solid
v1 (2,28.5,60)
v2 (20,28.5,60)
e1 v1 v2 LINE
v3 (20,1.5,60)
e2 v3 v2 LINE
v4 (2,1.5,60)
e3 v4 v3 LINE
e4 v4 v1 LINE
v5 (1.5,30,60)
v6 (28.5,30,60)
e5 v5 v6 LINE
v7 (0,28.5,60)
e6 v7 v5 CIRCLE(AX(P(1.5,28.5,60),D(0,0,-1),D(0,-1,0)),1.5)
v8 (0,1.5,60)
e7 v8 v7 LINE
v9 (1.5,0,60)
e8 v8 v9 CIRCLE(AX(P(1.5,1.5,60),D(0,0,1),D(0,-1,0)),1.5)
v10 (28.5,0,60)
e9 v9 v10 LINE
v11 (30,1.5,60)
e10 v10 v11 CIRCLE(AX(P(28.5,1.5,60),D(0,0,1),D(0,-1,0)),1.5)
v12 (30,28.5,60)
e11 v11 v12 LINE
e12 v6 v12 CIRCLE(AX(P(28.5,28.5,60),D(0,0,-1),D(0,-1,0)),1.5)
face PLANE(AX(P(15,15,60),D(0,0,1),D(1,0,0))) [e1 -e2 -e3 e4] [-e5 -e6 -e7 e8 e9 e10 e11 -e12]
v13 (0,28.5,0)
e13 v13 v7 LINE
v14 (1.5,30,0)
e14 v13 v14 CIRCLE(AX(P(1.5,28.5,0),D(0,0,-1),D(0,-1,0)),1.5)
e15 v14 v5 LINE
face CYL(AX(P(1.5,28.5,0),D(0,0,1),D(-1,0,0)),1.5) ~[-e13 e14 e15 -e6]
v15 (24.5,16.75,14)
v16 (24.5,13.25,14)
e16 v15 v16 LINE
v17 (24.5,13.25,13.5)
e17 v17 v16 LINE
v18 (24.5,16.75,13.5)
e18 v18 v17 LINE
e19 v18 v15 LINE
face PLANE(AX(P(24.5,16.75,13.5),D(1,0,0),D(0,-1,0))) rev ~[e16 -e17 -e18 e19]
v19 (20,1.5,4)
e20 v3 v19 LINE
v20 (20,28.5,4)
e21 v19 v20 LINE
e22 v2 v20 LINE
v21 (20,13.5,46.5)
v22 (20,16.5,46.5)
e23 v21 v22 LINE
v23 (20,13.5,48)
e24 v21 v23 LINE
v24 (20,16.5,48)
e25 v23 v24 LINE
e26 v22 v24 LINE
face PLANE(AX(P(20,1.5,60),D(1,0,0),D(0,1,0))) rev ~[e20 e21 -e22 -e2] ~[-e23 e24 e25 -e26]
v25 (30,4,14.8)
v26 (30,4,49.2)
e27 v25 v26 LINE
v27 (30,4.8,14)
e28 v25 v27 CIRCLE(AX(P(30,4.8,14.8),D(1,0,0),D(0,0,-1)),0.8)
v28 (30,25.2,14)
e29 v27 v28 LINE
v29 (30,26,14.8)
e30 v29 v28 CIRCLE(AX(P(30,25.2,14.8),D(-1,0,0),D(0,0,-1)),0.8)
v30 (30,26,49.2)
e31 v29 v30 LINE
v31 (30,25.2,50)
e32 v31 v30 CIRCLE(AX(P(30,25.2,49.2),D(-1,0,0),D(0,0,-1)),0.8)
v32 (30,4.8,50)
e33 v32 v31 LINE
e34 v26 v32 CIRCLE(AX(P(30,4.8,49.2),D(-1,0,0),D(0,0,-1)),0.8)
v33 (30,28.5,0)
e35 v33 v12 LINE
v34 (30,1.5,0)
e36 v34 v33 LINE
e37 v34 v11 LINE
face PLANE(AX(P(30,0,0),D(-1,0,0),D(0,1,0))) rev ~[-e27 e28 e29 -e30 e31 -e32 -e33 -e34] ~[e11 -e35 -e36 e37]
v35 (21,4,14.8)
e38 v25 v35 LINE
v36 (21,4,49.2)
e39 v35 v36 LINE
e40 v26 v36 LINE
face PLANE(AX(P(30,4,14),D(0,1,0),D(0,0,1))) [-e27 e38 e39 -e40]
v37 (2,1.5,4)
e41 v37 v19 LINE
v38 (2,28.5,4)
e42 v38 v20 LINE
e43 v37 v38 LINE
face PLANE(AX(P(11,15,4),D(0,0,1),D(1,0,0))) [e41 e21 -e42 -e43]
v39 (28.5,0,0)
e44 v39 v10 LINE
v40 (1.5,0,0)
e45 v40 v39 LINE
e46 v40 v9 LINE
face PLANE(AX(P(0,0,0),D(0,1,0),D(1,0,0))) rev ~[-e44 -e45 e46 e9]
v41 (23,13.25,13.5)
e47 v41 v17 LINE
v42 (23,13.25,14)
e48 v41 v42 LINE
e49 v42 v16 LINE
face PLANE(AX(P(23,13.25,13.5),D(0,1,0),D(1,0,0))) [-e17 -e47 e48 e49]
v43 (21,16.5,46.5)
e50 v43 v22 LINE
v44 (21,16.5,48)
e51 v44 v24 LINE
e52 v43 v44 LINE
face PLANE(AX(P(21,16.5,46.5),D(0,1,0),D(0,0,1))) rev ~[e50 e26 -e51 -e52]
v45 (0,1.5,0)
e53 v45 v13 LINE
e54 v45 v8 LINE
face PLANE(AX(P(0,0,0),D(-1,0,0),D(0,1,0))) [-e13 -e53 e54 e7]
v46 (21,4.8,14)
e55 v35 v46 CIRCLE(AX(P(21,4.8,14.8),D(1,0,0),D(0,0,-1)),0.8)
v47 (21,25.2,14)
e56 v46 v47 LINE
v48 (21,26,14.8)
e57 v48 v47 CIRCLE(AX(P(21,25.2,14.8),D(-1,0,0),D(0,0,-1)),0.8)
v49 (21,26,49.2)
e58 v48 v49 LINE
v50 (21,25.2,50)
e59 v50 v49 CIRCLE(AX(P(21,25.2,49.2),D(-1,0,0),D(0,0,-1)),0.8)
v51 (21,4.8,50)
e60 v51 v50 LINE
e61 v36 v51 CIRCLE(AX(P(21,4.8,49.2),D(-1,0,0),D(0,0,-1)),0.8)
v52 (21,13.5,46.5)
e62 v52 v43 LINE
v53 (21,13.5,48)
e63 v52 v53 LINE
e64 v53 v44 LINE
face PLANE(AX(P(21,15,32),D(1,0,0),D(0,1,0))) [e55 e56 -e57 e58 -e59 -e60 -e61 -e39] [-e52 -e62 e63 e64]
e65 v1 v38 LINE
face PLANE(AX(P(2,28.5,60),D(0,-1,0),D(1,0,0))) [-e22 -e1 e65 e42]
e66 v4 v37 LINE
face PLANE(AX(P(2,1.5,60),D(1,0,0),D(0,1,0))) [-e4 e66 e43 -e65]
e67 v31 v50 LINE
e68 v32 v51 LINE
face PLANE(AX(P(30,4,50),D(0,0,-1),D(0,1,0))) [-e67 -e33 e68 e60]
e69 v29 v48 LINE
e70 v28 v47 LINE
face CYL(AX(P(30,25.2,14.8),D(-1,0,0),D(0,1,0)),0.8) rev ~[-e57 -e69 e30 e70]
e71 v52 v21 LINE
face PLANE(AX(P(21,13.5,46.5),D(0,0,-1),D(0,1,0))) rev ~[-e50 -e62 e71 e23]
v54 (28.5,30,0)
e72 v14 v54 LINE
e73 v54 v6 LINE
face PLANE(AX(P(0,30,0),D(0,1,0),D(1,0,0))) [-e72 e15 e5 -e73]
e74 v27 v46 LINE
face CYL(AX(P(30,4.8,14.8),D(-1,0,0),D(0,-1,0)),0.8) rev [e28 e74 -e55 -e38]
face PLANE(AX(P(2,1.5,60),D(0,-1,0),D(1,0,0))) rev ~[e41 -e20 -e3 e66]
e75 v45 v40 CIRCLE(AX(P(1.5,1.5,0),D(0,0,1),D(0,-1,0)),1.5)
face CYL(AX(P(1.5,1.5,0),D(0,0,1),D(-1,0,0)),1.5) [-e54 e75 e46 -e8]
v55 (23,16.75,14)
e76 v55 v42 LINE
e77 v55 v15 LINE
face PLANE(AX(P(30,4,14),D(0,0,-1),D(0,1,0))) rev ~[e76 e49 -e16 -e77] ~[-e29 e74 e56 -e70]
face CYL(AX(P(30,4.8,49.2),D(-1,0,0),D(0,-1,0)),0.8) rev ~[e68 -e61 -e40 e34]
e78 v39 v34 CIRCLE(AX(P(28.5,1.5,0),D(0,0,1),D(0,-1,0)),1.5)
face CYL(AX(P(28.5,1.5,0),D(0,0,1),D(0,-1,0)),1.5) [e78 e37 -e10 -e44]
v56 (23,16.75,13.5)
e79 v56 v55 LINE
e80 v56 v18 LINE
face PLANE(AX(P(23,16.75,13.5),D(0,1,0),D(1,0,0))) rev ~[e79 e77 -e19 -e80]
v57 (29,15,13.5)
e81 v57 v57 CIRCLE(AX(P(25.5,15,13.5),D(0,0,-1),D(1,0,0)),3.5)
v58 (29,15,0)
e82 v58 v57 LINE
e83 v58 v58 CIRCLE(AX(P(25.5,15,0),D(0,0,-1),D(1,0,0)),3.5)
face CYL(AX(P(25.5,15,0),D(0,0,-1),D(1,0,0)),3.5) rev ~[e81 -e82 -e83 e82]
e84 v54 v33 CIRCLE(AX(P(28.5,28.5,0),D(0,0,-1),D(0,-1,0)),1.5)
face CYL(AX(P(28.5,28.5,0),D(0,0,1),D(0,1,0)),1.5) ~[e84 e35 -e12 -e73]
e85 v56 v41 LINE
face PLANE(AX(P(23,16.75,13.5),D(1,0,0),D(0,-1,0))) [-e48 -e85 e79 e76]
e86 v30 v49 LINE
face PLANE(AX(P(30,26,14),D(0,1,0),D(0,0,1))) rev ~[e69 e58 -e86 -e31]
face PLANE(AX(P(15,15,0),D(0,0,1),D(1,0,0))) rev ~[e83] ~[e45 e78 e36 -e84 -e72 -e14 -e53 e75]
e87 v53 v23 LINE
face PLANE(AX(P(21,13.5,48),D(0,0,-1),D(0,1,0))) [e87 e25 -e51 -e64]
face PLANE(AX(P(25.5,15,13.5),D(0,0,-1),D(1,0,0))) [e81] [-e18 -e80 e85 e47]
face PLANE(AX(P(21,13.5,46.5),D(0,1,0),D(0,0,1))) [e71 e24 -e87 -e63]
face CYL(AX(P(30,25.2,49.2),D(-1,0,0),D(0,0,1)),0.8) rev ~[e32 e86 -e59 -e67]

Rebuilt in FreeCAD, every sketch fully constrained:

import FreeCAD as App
import Part
import Sketcher
Q = App.Units.Quantity


def edges_at(feature, points):
    """Names of the edges that pass closest to the given points."""
    edges = feature.Shape.Edges
    near = lambda p: min(range(len(edges)), key=lambda i: edges[i].distToShape(Part.Vertex(*p))[0])
    return sorted({f"Edge{near(p) + 1}" for p in points})


def add_polygon(sketch, points):
    """Adds a closed chain of lines whose ends are joined by coincident constraints."""
    first, n = sketch.GeometryCount, len(points)
    for a, b in zip(points, points[1:] + points[:1]):
        sketch.addGeometry(Part.LineSegment(App.Vector(*a, 0), App.Vector(*b, 0)), False)
    for i in range(n):
        sketch.addConstraint(Sketcher.Constraint("Coincident", first + i, 2, first + (i + 1) % n, 1))

doc = App.newDocument("Part")
body = doc.addObject("PartDesign::Body", "Body")

# Sketch on XY plane
sketch1 = body.newObject("Sketcher::SketchObject", "Sketch")
sketch1.AttachmentSupport = (doc.getObject("XY_Plane"), [""])
sketch1.MapMode = "FlatFace"
add_polygon(sketch1, [(0, 30), (0, 0), (30, 0), (30, 30)])  # lines 0-3
sketch1.addConstraint([
    Sketcher.Constraint("Vertical", 0),
    Sketcher.Constraint("Horizontal", 1),
    Sketcher.Constraint("Vertical", 2),
    Sketcher.Constraint("Horizontal", 3),
    Sketcher.Constraint("Coincident", 0, 2, -1, 1),
    Sketcher.Constraint("Equal", 3, 0),
    Sketcher.Constraint("DistanceX", 1, 1, 1, 2, Q("30 mm")),
])
pad1 = body.newObject("PartDesign::Pad", "Pad")
pad1.Profile = sketch1
pad1.Length = 60

# Sketch on XY plane
sketch2 = body.newObject("Sketcher::SketchObject", "Sketch001")
sketch2.AttachmentSupport = (doc.getObject("XY_Plane"), [""])
sketch2.MapMode = "FlatFace"
sketch2.AttachmentOffset = App.Placement(App.Vector(0, 0, 60), App.Rotation())
add_polygon(sketch2, [(2, 28), (2, 2), (20, 2), (20, 28)])  # lines 0-3
sketch2.addConstraint([
    Sketcher.Constraint("Vertical", 0),
    Sketcher.Constraint("Horizontal", 1),
    Sketcher.Constraint("Vertical", 2),
    Sketcher.Constraint("Horizontal", 3),
    Sketcher.Constraint("DistanceX", 1, 1, 1, 2, Q("18 mm")),
    Sketcher.Constraint("DistanceY", 0, 2, 0, 1, Q("27 mm")),
    Sketcher.Constraint("DistanceX", -1, 1, 0, 2, Q("2 mm")),
    Sketcher.Constraint("DistanceY", -1, 1, 0, 2, Q("1.5 mm")),
])
pocket1 = body.newObject("PartDesign::Pocket", "Pocket")
pocket1.Profile = sketch2
pocket1.Length = 56

# Sketch on YZ plane
sketch3 = body.newObject("Sketcher::SketchObject", "Sketch002")
sketch3.AttachmentSupport = (doc.getObject("YZ_Plane"), [""])
sketch3.MapMode = "FlatFace"
sketch3.AttachmentOffset = App.Placement(App.Vector(0, 0, 30), App.Rotation())
add_polygon(sketch3, [(4, 50), (4, 14), (26, 14), (26, 50)])  # lines 0-3
sketch3.addConstraint([
    Sketcher.Constraint("Vertical", 0),
    Sketcher.Constraint("Horizontal", 1),
    Sketcher.Constraint("Vertical", 2),
    Sketcher.Constraint("Horizontal", 3),
    Sketcher.Constraint("DistanceX", 1, 1, 1, 2, Q("22 mm")),
    Sketcher.Constraint("DistanceY", 0, 2, 0, 1, Q("36 mm")),
    Sketcher.Constraint("DistanceX", -1, 1, 0, 2, Q("4 mm")),
    Sketcher.Constraint("DistanceY", -1, 1, 0, 2, Q("14 mm")),
])
pocket2 = body.newObject("PartDesign::Pocket", "Pocket001")
pocket2.Profile = sketch3
pocket2.Length = 9

# Sketch on XY plane
sketch4 = body.newObject("Sketcher::SketchObject", "Sketch003")
sketch4.AttachmentSupport = (doc.getObject("XY_Plane"), [""])
sketch4.MapMode = "FlatFace"
sketch4.addGeometry(Part.Circle(App.Vector(25.5, 15, 0), App.Vector(0, 0, 1), 3.5), False)
sketch4.addConstraint([
    Sketcher.Constraint("Diameter", 0, Q("7 mm")),
    Sketcher.Constraint("DistanceY", -1, 1, 0, 3, Q("15 mm")),
    Sketcher.Constraint("DistanceX", -1, 1, 0, 3, Q("25.5 mm")),
])
pocket3 = body.newObject("PartDesign::Pocket", "Pocket002")
pocket3.Profile = sketch4
pocket3.Length = 13.5
pocket3.Reversed = True

# Sketch on XY plane
sketch5 = body.newObject("Sketcher::SketchObject", "Sketch004")
sketch5.AttachmentSupport = (doc.getObject("XY_Plane"), [""])
sketch5.MapMode = "FlatFace"
sketch5.AttachmentOffset = App.Placement(App.Vector(0, 0, 13.5), App.Rotation())
add_polygon(sketch5, [(23, 13.2), (23, 16.8), (24.5, 16.8), (24.5, 13.2)])  # lines 0-3
sketch5.addConstraint([
    Sketcher.Constraint("Vertical", 0),
    Sketcher.Constraint("Horizontal", 1),
    Sketcher.Constraint("Vertical", 2),
    Sketcher.Constraint("Horizontal", 3),
    Sketcher.Constraint("DistanceX", 1, 1, 1, 2, Q("1.5 mm")),
    Sketcher.Constraint("DistanceY", 0, 1, 0, 2, Q("3.5 mm")),
    Sketcher.Constraint("DistanceX", -1, 1, 0, 2, Q("23 mm")),
    Sketcher.Constraint("DistanceY", -1, 1, 0, 2, Q("16.75 mm")),
])
pocket4 = body.newObject("PartDesign::Pocket", "Pocket003")
pocket4.Profile = sketch5
pocket4.Length = 1
pocket4.Reversed = True

# Sketch on YZ plane
sketch6 = body.newObject("Sketcher::SketchObject", "Sketch005")
sketch6.AttachmentSupport = (doc.getObject("YZ_Plane"), [""])
sketch6.MapMode = "FlatFace"
sketch6.AttachmentOffset = App.Placement(App.Vector(0, 0, 21), App.Rotation())
add_polygon(sketch6, [(13.5, 48), (13.5, 46.5), (16.5, 46.5), (16.5, 48)])  # lines 0-3
sketch6.addConstraint([
    Sketcher.Constraint("Vertical", 0),
    Sketcher.Constraint("Horizontal", 1),
    Sketcher.Constraint("Vertical", 2),
    Sketcher.Constraint("Horizontal", 3),
    Sketcher.Constraint("DistanceX", 1, 1, 1, 2, Q("3 mm")),
    Sketcher.Constraint("DistanceY", 0, 2, 0, 1, Q("1.5 mm")),
    Sketcher.Constraint("DistanceY", -1, 1, 2, 2, Q("48 mm")),
    Sketcher.Constraint("DistanceX", -1, 1, 0, 2, Q("13.5 mm")),
])
pocket5 = body.newObject("PartDesign::Pocket", "Pocket004")
pocket5.Profile = sketch6
pocket5.Length = 1
doc.recompute()

fillet = body.newObject("PartDesign::Fillet", "Fillet")
fillet.Base = (pocket5, edges_at(pocket5, [
    (30, 0, 30),
    (30, 30, 30),
    (0, 0, 30),
    (0, 30, 30),
]))
fillet.Radius = 1.5
doc.recompute()

fillet2 = body.newObject("PartDesign::Fillet", "Fillet001")
fillet2.Base = (fillet, edges_at(fillet, [
    (25.5, 26, 50),
    (25.5, 26, 14),
    (25.5, 4, 14),
    (25.5, 4, 50),
]))
fillet2.Radius = 0.8

doc.recompute()
